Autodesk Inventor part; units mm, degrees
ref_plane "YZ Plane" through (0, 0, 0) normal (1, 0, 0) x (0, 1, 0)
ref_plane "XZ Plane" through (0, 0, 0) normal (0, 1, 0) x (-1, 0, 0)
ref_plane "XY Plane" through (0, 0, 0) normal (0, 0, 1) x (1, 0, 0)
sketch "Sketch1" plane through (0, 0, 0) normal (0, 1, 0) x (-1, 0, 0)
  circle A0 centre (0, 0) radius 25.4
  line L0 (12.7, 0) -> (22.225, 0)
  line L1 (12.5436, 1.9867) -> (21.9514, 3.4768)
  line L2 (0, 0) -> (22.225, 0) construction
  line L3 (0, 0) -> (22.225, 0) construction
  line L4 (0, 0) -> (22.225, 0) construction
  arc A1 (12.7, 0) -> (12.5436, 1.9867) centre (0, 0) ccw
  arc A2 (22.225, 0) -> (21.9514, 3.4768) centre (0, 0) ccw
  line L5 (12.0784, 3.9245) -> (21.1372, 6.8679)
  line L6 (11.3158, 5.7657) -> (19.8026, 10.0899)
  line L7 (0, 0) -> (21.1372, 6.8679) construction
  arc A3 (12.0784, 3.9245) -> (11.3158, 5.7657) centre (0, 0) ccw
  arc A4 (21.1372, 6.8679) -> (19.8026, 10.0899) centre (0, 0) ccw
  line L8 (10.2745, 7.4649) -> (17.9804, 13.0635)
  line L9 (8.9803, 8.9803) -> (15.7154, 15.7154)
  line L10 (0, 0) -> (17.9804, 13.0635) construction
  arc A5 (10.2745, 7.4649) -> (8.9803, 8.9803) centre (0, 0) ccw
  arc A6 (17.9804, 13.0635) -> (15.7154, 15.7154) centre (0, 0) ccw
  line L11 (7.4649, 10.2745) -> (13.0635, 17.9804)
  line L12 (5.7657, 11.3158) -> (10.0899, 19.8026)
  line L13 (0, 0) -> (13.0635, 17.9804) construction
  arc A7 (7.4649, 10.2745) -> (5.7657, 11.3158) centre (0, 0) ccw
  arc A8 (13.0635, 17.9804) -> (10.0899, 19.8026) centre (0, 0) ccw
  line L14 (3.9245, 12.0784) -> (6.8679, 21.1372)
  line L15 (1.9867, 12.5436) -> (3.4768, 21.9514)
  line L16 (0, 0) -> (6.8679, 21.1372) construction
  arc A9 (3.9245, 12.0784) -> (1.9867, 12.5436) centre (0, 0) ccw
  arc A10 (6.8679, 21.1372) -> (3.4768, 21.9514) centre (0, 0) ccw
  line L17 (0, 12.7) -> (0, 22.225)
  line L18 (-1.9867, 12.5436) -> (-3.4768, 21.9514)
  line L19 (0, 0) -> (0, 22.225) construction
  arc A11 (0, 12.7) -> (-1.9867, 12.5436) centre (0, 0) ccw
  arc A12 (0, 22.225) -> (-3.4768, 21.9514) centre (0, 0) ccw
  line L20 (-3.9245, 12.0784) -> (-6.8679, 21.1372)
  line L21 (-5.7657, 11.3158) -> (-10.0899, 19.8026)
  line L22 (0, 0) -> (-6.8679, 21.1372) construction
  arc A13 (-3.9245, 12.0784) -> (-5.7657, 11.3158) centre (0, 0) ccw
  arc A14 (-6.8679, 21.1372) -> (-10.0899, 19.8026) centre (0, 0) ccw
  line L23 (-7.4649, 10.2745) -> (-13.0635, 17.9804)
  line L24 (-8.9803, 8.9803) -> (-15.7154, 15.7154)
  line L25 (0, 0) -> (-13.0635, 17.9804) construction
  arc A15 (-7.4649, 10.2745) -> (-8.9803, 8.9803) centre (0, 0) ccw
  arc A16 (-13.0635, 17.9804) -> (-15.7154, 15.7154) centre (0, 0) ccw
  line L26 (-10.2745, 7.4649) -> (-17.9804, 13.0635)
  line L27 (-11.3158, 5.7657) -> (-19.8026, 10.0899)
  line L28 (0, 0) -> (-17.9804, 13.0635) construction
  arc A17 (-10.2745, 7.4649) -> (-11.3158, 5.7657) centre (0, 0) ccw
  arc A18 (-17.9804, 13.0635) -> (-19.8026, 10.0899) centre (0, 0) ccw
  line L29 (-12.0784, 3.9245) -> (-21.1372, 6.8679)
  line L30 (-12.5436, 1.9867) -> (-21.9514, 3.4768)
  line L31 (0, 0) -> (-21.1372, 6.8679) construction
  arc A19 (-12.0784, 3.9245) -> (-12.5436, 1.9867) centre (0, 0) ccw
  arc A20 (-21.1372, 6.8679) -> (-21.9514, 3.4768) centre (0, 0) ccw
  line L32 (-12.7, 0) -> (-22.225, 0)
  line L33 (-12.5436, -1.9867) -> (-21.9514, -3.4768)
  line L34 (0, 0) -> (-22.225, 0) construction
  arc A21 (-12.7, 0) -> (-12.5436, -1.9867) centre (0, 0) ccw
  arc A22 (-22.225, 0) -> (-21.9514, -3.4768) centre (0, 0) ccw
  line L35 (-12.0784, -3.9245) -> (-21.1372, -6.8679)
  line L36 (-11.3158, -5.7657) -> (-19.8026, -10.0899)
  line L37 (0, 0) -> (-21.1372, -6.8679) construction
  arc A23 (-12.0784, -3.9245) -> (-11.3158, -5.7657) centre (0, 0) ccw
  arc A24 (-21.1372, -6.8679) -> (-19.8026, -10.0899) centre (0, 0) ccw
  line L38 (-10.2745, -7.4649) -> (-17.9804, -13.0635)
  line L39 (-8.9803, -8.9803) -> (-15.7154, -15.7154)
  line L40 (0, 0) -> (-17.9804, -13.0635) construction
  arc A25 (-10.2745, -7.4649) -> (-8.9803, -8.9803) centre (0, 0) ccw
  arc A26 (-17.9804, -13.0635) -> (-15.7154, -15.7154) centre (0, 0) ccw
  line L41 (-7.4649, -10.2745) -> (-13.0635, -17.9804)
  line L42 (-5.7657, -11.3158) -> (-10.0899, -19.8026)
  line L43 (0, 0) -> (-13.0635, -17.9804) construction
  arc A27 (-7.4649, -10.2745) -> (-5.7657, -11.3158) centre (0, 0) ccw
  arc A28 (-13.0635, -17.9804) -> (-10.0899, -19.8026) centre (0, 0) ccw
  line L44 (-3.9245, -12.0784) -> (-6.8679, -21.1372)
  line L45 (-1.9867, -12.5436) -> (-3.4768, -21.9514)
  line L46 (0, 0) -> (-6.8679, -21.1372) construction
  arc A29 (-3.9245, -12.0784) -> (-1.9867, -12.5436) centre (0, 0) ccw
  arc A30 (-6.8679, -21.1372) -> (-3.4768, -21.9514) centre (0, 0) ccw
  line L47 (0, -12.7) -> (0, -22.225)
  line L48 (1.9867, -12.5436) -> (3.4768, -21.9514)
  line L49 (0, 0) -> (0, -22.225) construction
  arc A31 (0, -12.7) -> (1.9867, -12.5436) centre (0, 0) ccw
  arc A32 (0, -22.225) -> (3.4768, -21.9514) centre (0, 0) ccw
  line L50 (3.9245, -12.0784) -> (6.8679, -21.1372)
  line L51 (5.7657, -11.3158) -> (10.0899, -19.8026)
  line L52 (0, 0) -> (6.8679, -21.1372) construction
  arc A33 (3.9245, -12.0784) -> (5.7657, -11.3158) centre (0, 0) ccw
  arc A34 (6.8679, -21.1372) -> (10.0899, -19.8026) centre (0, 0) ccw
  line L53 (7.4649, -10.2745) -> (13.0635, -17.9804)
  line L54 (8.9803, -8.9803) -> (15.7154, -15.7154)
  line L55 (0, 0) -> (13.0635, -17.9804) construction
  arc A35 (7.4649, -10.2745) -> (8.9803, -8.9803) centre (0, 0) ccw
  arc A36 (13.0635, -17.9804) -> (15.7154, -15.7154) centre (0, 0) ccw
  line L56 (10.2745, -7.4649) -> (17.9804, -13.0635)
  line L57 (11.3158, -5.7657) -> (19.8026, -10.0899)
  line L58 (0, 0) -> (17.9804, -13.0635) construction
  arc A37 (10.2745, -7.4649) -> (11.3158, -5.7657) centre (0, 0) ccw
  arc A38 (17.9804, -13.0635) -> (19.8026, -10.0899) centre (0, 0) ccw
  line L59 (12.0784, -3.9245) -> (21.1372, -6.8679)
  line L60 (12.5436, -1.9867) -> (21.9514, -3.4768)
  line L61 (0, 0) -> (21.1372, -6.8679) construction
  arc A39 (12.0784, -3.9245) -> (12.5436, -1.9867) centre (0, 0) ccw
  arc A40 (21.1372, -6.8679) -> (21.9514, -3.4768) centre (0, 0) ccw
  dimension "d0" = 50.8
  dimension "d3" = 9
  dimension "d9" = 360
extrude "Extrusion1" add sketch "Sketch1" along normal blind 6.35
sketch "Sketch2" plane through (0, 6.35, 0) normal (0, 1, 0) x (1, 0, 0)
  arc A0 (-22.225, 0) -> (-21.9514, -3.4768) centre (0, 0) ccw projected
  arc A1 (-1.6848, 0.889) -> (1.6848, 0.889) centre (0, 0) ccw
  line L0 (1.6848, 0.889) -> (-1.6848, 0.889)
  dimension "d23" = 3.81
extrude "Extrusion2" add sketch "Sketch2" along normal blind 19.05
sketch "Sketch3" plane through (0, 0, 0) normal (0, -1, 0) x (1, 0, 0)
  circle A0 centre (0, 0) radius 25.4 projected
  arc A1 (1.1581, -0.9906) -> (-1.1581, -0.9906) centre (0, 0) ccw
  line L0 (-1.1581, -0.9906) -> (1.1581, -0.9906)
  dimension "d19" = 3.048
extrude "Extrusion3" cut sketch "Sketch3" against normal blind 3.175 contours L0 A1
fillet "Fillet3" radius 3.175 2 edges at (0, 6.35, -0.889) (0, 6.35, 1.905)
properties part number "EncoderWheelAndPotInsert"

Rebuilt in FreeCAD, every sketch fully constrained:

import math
import FreeCAD as App
import Part
import Sketcher
Q = App.Units.Quantity


def edges_at(feature, points):
    """Names of the edges that pass closest to the given points."""
    edges = feature.Shape.Edges
    near = lambda p: min(range(len(edges)), key=lambda i: edges[i].distToShape(Part.Vertex(*p))[0])
    return sorted({f"Edge{near(p) + 1}" for p in points})

doc = App.newDocument("Part")
params = doc.addObject("Spreadsheet::Sheet", "Params")
for row, (alias, value) in enumerate([
    ("sketch1_diameter", "2 in"),
    ("sketch1_radius", "0.875 in"),
    ("pad1_length", "0.25 in"),
    ("sketch2_radius", "0.075 in"),
    ("pad2_length", "0.75 in"),
    ("sketch3_radius", "0.06 in"),
    ("pocket1_length", "0.125 in"),
    ("fillet_radius", "0.125 in"),
], start=1):
    params.set(f"A{row}", alias)
    params.set(f"B{row}", "=" + value)
    params.setAlias(f"B{row}", alias)

body = doc.addObject("PartDesign::Body", "Body")

sketch1 = doc.addObject("Sketcher::SketchObject", "Sketch")
body.addObject(sketch1)
sketch1.AttachmentSupport = (doc.XZ_Plane, [""])
sketch1.MapMode = "FlatFace"
sketch1.addGeometry(Part.Circle(App.Vector(0, 0, 0), App.Vector(0, 0, 1), 25.4), False)
sketch1.addGeometry(Part.LineSegment(App.Vector(13.0635, -17.9804, 0), App.Vector(7.4649, -10.2745, 0)), False)
sketch1.addGeometry(Part.ArcOfCircle(Part.Circle(App.Vector(-0.001931, 0.002891, 0), App.Vector(0, 0, 1), 12.703477), math.radians(-62.998109), math.radians(-54.000474)), False)
sketch1.addGeometry(Part.LineSegment(App.Vector(5.7657, -11.3158, 0), App.Vector(10.0899, -19.8026, 0)), False)
sketch1.addGeometry(Part.ArcOfCircle(Part.Circle(App.Vector(0.001557, -0.002331, 0), App.Vector(0, 0, 1), 22.222181), math.radians(-63.000915), math.radians(-53.999769)), False)
sketch1.addGeometry(Part.LineSegment(App.Vector(6.8679, -21.1372, 0), App.Vector(3.9245, -12.0784, 0)), False)
sketch1.addGeometry(Part.ArcOfCircle(Part.Circle(App.Vector(0.000987, -0.003499, 0), App.Vector(0, 0, 1), 12.696346), math.radians(-81.001977), math.radians(-71.999399)), False)
sketch1.addGeometry(Part.LineSegment(App.Vector(1.9867, -12.5436, 0), App.Vector(3.4768, -21.9514, 0)), False)
sketch1.addGeometry(Part.ArcOfCircle(Part.Circle(App.Vector(-0.002803, 0.009937, 0), App.Vector(0, 0, 1), 22.235286), math.radians(-80.996772), math.radians(-72.001026)), False)
sketch1.addGeometry(Part.LineSegment(App.Vector(17.9804, -13.0635, 0), App.Vector(10.2745, -7.4649, 0)), False)
sketch1.addGeometry(Part.ArcOfCircle(Part.Circle(App.Vector(-0.007503, 0.005915, 0), App.Vector(0, 0, 1), 12.70955), math.radians(-44.994937), math.radians(-36.001833)), False)
sketch1.addGeometry(Part.LineSegment(App.Vector(8.9803, -8.9803, 0), App.Vector(15.7154, -15.7154, 0)), False)
sketch1.addGeometry(Part.ArcOfCircle(Part.Circle(App.Vector(0.00637, -0.005022, 0), App.Vector(0, 0, 1), 22.216876), math.radians(-45.002459), math.radians(-35.999126)), False)
sketch1.addGeometry(Part.LineSegment(App.Vector(21.1372, -6.8679, 0), App.Vector(12.0784, -3.9245, 0)), False)
sketch1.addGeometry(Part.ArcOfCircle(Part.Circle(App.Vector(-0.007075, 0.00261, 0), App.Vector(0, 0, 1), 12.707513), math.radians(-26.996052), math.radians(-18.001292)), False)
sketch1.addGeometry(Part.LineSegment(App.Vector(11.3158, -5.7657, 0), App.Vector(19.8026, -10.0899, 0)), False)
sketch1.addGeometry(Part.ArcOfCircle(Part.Circle(App.Vector(0, 0, 0), App.Vector(0, 0, 1), 22.22497), math.radians(-26.999934), math.radians(-18.000018)), False)
sketch1.addGeometry(Part.LineSegment(App.Vector(22.225, 0, 0), App.Vector(12.7, 0, 0)), False)
sketch1.addGeometry(Part.ArcOfCircle(Part.Circle(App.Vector(0.007162, -0.000281, 0), App.Vector(0, 0, 1), 12.692838), math.radians(-9.003753), math.radians(0.00127)), False)
sketch1.addGeometry(Part.LineSegment(App.Vector(12.5436, -1.9867, 0), App.Vector(21.9514, -3.4768, 0)), False)
sketch1.addGeometry(Part.ArcOfCircle(Part.Circle(App.Vector(-0.005384, 0.000212, 0), App.Vector(0, 0, 1), 22.230384), math.radians(-8.998469), math.radians(-0.000545)), False)
sketch1.addGeometry(Part.LineSegment(App.Vector(0, -22.225, 0), App.Vector(0, -12.7, 0)), False)
sketch1.addGeometry(Part.ArcOfCircle(Part.Circle(App.Vector(-0.000281, -0.007162, 0), App.Vector(0, 0, 1), 12.692838), math.radians(-99.003753), math.radians(-89.99873)), False)
sketch1.addGeometry(Part.LineSegment(App.Vector(-1.9867, -12.5436, 0), App.Vector(-3.4768, -21.9514, 0)), False)
sketch1.addGeometry(Part.ArcOfCircle(Part.Circle(App.Vector(0.000212, 0.005384, 0), App.Vector(0, 0, 1), 22.230384), math.radians(-98.998469), math.radians(-90.000545)), False)
sketch1.addGeometry(Part.LineSegment(App.Vector(-6.8679, -21.1372, 0), App.Vector(-3.9245, -12.0784, 0)), False)
sketch1.addGeometry(Part.ArcOfCircle(Part.Circle(App.Vector(0.00261, 0.007075, 0), App.Vector(0, 0, 1), 12.707513), math.radians(-116.996052), math.radians(-108.001292)), False)
sketch1.addGeometry(Part.LineSegment(App.Vector(-5.7657, -11.3158, 0), App.Vector(-10.0899, -19.8026, 0)), False)
sketch1.addGeometry(Part.ArcOfCircle(Part.Circle(App.Vector(0, 0, 0), App.Vector(0, 0, 1), 22.22497), math.radians(-116.999934), math.radians(-108.000018)), False)
sketch1.addGeometry(Part.LineSegment(App.Vector(-13.0635, -17.9804, 0), App.Vector(-7.4649, -10.2745, 0)), False)
sketch1.addGeometry(Part.ArcOfCircle(Part.Circle(App.Vector(0.005915, 0.007503, 0), App.Vector(0, 0, 1), 12.70955), math.radians(-134.994937), math.radians(-126.001833)), False)
sketch1.addGeometry(Part.LineSegment(App.Vector(-8.9803, -8.9803, 0), App.Vector(-15.7154, -15.7154, 0)), False)
sketch1.addGeometry(Part.ArcOfCircle(Part.Circle(App.Vector(-0.005022, -0.00637, 0), App.Vector(0, 0, 1), 22.216876), math.radians(-135.002459), math.radians(-125.999126)), False)
sketch1.addGeometry(Part.LineSegment(App.Vector(-17.9804, -13.0635, 0), App.Vector(-10.2745, -7.4649, 0)), False)
sketch1.addGeometry(Part.ArcOfCircle(Part.Circle(App.Vector(0.002891, 0.001931, 0), App.Vector(0, 0, 1), 12.703477), math.radians(-152.998109), math.radians(-144.000474)), False)
sketch1.addGeometry(Part.LineSegment(App.Vector(-11.3158, -5.7657, 0), App.Vector(-19.8026, -10.0899, 0)), False)
sketch1.addGeometry(Part.ArcOfCircle(Part.Circle(App.Vector(-0.002331, -0.001557, 0), App.Vector(0, 0, 1), 22.222181), math.radians(-153.000915), math.radians(-143.999769)), False)
sketch1.addGeometry(Part.LineSegment(App.Vector(-21.1372, -6.8679, 0), App.Vector(-12.0784, -3.9245, 0)), False)
sketch1.addGeometry(Part.ArcOfCircle(Part.Circle(App.Vector(-0.003499, -0.000987, 0), App.Vector(0, 0, 1), 12.696346), math.radians(-171.001977), math.radians(-161.999399)), False)
sketch1.addGeometry(Part.LineSegment(App.Vector(-12.5436, -1.9867, 0), App.Vector(-21.9514, -3.4768, 0)), False)
sketch1.addGeometry(Part.ArcOfCircle(Part.Circle(App.Vector(0.009937, 0.002803, 0), App.Vector(0, 0, 1), 22.235286), math.radians(-170.996772), math.radians(-162.001026)), False)
sketch1.addGeometry(Part.LineSegment(App.Vector(21.1372, 6.8679, 0), App.Vector(12.0784, 3.9245, 0)), False)
sketch1.addGeometry(Part.ArcOfCircle(Part.Circle(App.Vector(0.003499, 0.000987, 0), App.Vector(0, 0, 1), 12.696346), math.radians(8.998023), math.radians(18.000601)), False)
sketch1.addGeometry(Part.LineSegment(App.Vector(12.5436, 1.9867, 0), App.Vector(21.9514, 3.4768, 0)), False)
sketch1.addGeometry(Part.ArcOfCircle(Part.Circle(App.Vector(-0.009937, -0.002803, 0), App.Vector(0, 0, 1), 22.235286), math.radians(9.003228), math.radians(17.998974)), False)
sketch1.addGeometry(Part.LineSegment(App.Vector(17.9804, 13.0635, 0), App.Vector(10.2745, 7.4649, 0)), False)
sketch1.addGeometry(Part.ArcOfCircle(Part.Circle(App.Vector(-0.002891, -0.001931, 0), App.Vector(0, 0, 1), 12.703477), math.radians(27.001891), math.radians(35.999526)), False)
sketch1.addGeometry(Part.LineSegment(App.Vector(11.3158, 5.7657, 0), App.Vector(19.8026, 10.0899, 0)), False)
sketch1.addGeometry(Part.ArcOfCircle(Part.Circle(App.Vector(0.002331, 0.001557, 0), App.Vector(0, 0, 1), 22.222181), math.radians(26.999085), math.radians(36.000231)), False)
sketch1.addGeometry(Part.LineSegment(App.Vector(13.0635, 17.9804, 0), App.Vector(7.4649, 10.2745, 0)), False)
sketch1.addGeometry(Part.ArcOfCircle(Part.Circle(App.Vector(-0.005915, -0.007503, 0), App.Vector(0, 0, 1), 12.70955), math.radians(45.005063), math.radians(53.998167)), False)
sketch1.addGeometry(Part.LineSegment(App.Vector(8.9803, 8.9803, 0), App.Vector(15.7154, 15.7154, 0)), False)
sketch1.addGeometry(Part.ArcOfCircle(Part.Circle(App.Vector(0.005022, 0.00637, 0), App.Vector(0, 0, 1), 22.216876), math.radians(44.997541), math.radians(54.000874)), False)
sketch1.addGeometry(Part.LineSegment(App.Vector(6.8679, 21.1372, 0), App.Vector(3.9245, 12.0784, 0)), False)
sketch1.addGeometry(Part.ArcOfCircle(Part.Circle(App.Vector(-0.00261, -0.007075, 0), App.Vector(0, 0, 1), 12.707513), math.radians(63.003948), math.radians(71.998708)), False)
sketch1.addGeometry(Part.LineSegment(App.Vector(5.7657, 11.3158, 0), App.Vector(10.0899, 19.8026, 0)), False)
sketch1.addGeometry(Part.ArcOfCircle(Part.Circle(App.Vector(0, 0, 0), App.Vector(0, 0, 1), 22.22497), math.radians(63.000066), math.radians(71.999982)), False)
sketch1.addGeometry(Part.LineSegment(App.Vector(0, 22.225, 0), App.Vector(0, 12.7, 0)), False)
sketch1.addGeometry(Part.ArcOfCircle(Part.Circle(App.Vector(0.000281, 0.007162, 0), App.Vector(0, 0, 1), 12.692838), math.radians(80.996247), math.radians(90.00127)), False)
sketch1.addGeometry(Part.LineSegment(App.Vector(1.9867, 12.5436, 0), App.Vector(3.4768, 21.9514, 0)), False)
sketch1.addGeometry(Part.ArcOfCircle(Part.Circle(App.Vector(-0.000212, -0.005384, 0), App.Vector(0, 0, 1), 22.230384), math.radians(81.001531), math.radians(89.999455)), False)
sketch1.addGeometry(Part.LineSegment(App.Vector(-22.225, 0, 0), App.Vector(-12.7, 0, 0)), False)
sketch1.addGeometry(Part.ArcOfCircle(Part.Circle(App.Vector(-0.007162, 0.000281, 0), App.Vector(0, 0, 1), 12.692838), math.radians(170.996247), math.radians(180.00127)), False)
sketch1.addGeometry(Part.LineSegment(App.Vector(-12.5436, 1.9867, 0), App.Vector(-21.9514, 3.4768, 0)), False)
sketch1.addGeometry(Part.ArcOfCircle(Part.Circle(App.Vector(0.005384, -0.000212, 0), App.Vector(0, 0, 1), 22.230384), math.radians(171.001531), math.radians(179.999455)), False)
sketch1.addGeometry(Part.LineSegment(App.Vector(-21.1372, 6.8679, 0), App.Vector(-12.0784, 3.9245, 0)), False)
sketch1.addGeometry(Part.ArcOfCircle(Part.Circle(App.Vector(0.007075, -0.00261, 0), App.Vector(0, 0, 1), 12.707513), math.radians(153.003948), math.radians(161.998708)), False)
sketch1.addGeometry(Part.LineSegment(App.Vector(-11.3158, 5.7657, 0), App.Vector(-19.8026, 10.0899, 0)), False)
sketch1.addGeometry(Part.ArcOfCircle(Part.Circle(App.Vector(0, 0, 0), App.Vector(0, 0, 1), 22.22497), math.radians(153.000066), math.radians(161.999982)), False)
sketch1.addGeometry(Part.LineSegment(App.Vector(-17.9804, 13.0635, 0), App.Vector(-10.2745, 7.4649, 0)), False)
sketch1.addGeometry(Part.ArcOfCircle(Part.Circle(App.Vector(0.007503, -0.005915, 0), App.Vector(0, 0, 1), 12.70955), math.radians(135.005063), math.radians(143.998167)), False)
sketch1.addGeometry(Part.LineSegment(App.Vector(-8.9803, 8.9803, 0), App.Vector(-15.7154, 15.7154, 0)), False)
sketch1.addGeometry(Part.ArcOfCircle(Part.Circle(App.Vector(-0.00637, 0.005022, 0), App.Vector(0, 0, 1), 22.216876), math.radians(134.997541), math.radians(144.000874)), False)
sketch1.addGeometry(Part.LineSegment(App.Vector(-6.8679, 21.1372, 0), App.Vector(-3.9245, 12.0784, 0)), False)
sketch1.addGeometry(Part.ArcOfCircle(Part.Circle(App.Vector(-0.000987, 0.003499, 0), App.Vector(0, 0, 1), 12.696346), math.radians(98.998023), math.radians(108.000601)), False)
sketch1.addGeometry(Part.LineSegment(App.Vector(-1.9867, 12.5436, 0), App.Vector(-3.4768, 21.9514, 0)), False)
sketch1.addGeometry(Part.ArcOfCircle(Part.Circle(App.Vector(0.002803, -0.009937, 0), App.Vector(0, 0, 1), 22.235286), math.radians(99.003228), math.radians(107.998974)), False)
sketch1.addGeometry(Part.LineSegment(App.Vector(-13.0635, 17.9804, 0), App.Vector(-7.4649, 10.2745, 0)), False)
sketch1.addGeometry(Part.ArcOfCircle(Part.Circle(App.Vector(0.001931, -0.002891, 0), App.Vector(0, 0, 1), 12.703477), math.radians(117.001891), math.radians(125.999526)), False)
sketch1.addGeometry(Part.LineSegment(App.Vector(-5.7657, 11.3158, 0), App.Vector(-10.0899, 19.8026, 0)), False)
sketch1.addGeometry(Part.ArcOfCircle(Part.Circle(App.Vector(-0.001557, 0.002331, 0), App.Vector(0, 0, 1), 22.222181), math.radians(116.999085), math.radians(126.000231)), False)
sketch1.addConstraint(Sketcher.Constraint("Coincident", 1, 2, 2, 2))
sketch1.addConstraint(Sketcher.Constraint("Coincident", 2, 1, 3, 1))
sketch1.addConstraint(Sketcher.Constraint("Coincident", 3, 2, 4, 1))
sketch1.addConstraint(Sketcher.Constraint("Coincident", 4, 2, 1, 1))
sketch1.addConstraint(Sketcher.Constraint("Coincident", 5, 2, 6, 2))
sketch1.addConstraint(Sketcher.Constraint("Coincident", 6, 1, 7, 1))
sketch1.addConstraint(Sketcher.Constraint("Coincident", 7, 2, 8, 1))
sketch1.addConstraint(Sketcher.Constraint("Coincident", 8, 2, 5, 1))
sketch1.addConstraint(Sketcher.Constraint("Coincident", 9, 2, 10, 2))
sketch1.addConstraint(Sketcher.Constraint("Coincident", 10, 1, 11, 1))
sketch1.addConstraint(Sketcher.Constraint("Coincident", 11, 2, 12, 1))
sketch1.addConstraint(Sketcher.Constraint("Coincident", 12, 2, 9, 1))
sketch1.addConstraint(Sketcher.Constraint("Coincident", 13, 2, 14, 2))
sketch1.addConstraint(Sketcher.Constraint("Coincident", 14, 1, 15, 1))
sketch1.addConstraint(Sketcher.Constraint("Coincident", 15, 2, 16, 1))
sketch1.addConstraint(Sketcher.Constraint("Coincident", 16, 2, 13, 1))
sketch1.addConstraint(Sketcher.Constraint("Coincident", 17, 2, 18, 2))
sketch1.addConstraint(Sketcher.Constraint("Coincident", 18, 1, 19, 1))
sketch1.addConstraint(Sketcher.Constraint("Coincident", 19, 2, 20, 1))
sketch1.addConstraint(Sketcher.Constraint("Coincident", 20, 2, 17, 1))
sketch1.addConstraint(Sketcher.Constraint("Coincident", 21, 2, 22, 2))
sketch1.addConstraint(Sketcher.Constraint("Coincident", 22, 1, 23, 1))
sketch1.addConstraint(Sketcher.Constraint("Coincident", 23, 2, 24, 1))
sketch1.addConstraint(Sketcher.Constraint("Coincident", 24, 2, 21, 1))
sketch1.addConstraint(Sketcher.Constraint("Coincident", 25, 2, 26, 2))
sketch1.addConstraint(Sketcher.Constraint("Coincident", 26, 1, 27, 1))
sketch1.addConstraint(Sketcher.Constraint("Coincident", 27, 2, 28, 1))
sketch1.addConstraint(Sketcher.Constraint("Coincident", 28, 2, 25, 1))
sketch1.addConstraint(Sketcher.Constraint("Coincident", 29, 2, 30, 2))
sketch1.addConstraint(Sketcher.Constraint("Coincident", 30, 1, 31, 1))
sketch1.addConstraint(Sketcher.Constraint("Coincident", 31, 2, 32, 1))
sketch1.addConstraint(Sketcher.Constraint("Coincident", 32, 2, 29, 1))
sketch1.addConstraint(Sketcher.Constraint("Coincident", 33, 2, 34, 2))
sketch1.addConstraint(Sketcher.Constraint("Coincident", 34, 1, 35, 1))
sketch1.addConstraint(Sketcher.Constraint("Coincident", 35, 2, 36, 1))
sketch1.addConstraint(Sketcher.Constraint("Coincident", 36, 2, 33, 1))
sketch1.addConstraint(Sketcher.Constraint("Coincident", 37, 2, 38, 2))
sketch1.addConstraint(Sketcher.Constraint("Coincident", 38, 1, 39, 1))
sketch1.addConstraint(Sketcher.Constraint("Coincident", 39, 2, 40, 1))
sketch1.addConstraint(Sketcher.Constraint("Coincident", 40, 2, 37, 1))
sketch1.addConstraint(Sketcher.Constraint("Coincident", 41, 2, 42, 2))
sketch1.addConstraint(Sketcher.Constraint("Coincident", 42, 1, 43, 1))
sketch1.addConstraint(Sketcher.Constraint("Coincident", 43, 2, 44, 1))
sketch1.addConstraint(Sketcher.Constraint("Coincident", 44, 2, 41, 1))
sketch1.addConstraint(Sketcher.Constraint("Coincident", 45, 2, 46, 2))
sketch1.addConstraint(Sketcher.Constraint("Coincident", 46, 1, 47, 1))
sketch1.addConstraint(Sketcher.Constraint("Coincident", 47, 2, 48, 1))
sketch1.addConstraint(Sketcher.Constraint("Coincident", 48, 2, 45, 1))
sketch1.addConstraint(Sketcher.Constraint("Coincident", 49, 2, 50, 2))
sketch1.addConstraint(Sketcher.Constraint("Coincident", 50, 1, 51, 1))
sketch1.addConstraint(Sketcher.Constraint("Coincident", 51, 2, 52, 1))
sketch1.addConstraint(Sketcher.Constraint("Coincident", 52, 2, 49, 1))
sketch1.addConstraint(Sketcher.Constraint("Coincident", 53, 2, 54, 2))
sketch1.addConstraint(Sketcher.Constraint("Coincident", 54, 1, 55, 1))
sketch1.addConstraint(Sketcher.Constraint("Coincident", 55, 2, 56, 1))
sketch1.addConstraint(Sketcher.Constraint("Coincident", 56, 2, 53, 1))
sketch1.addConstraint(Sketcher.Constraint("Coincident", 57, 2, 58, 2))
sketch1.addConstraint(Sketcher.Constraint("Coincident", 58, 1, 59, 1))
sketch1.addConstraint(Sketcher.Constraint("Coincident", 59, 2, 60, 1))
sketch1.addConstraint(Sketcher.Constraint("Coincident", 60, 2, 57, 1))
sketch1.addConstraint(Sketcher.Constraint("Coincident", 61, 2, 62, 2))
sketch1.addConstraint(Sketcher.Constraint("Coincident", 62, 1, 63, 1))
sketch1.addConstraint(Sketcher.Constraint("Coincident", 63, 2, 64, 1))
sketch1.addConstraint(Sketcher.Constraint("Coincident", 64, 2, 61, 1))
sketch1.addConstraint(Sketcher.Constraint("Coincident", 65, 2, 66, 2))
sketch1.addConstraint(Sketcher.Constraint("Coincident", 66, 1, 67, 1))
sketch1.addConstraint(Sketcher.Constraint("Coincident", 67, 2, 68, 1))
sketch1.addConstraint(Sketcher.Constraint("Coincident", 68, 2, 65, 1))
sketch1.addConstraint(Sketcher.Constraint("Coincident", 69, 2, 70, 2))
sketch1.addConstraint(Sketcher.Constraint("Coincident", 70, 1, 71, 1))
sketch1.addConstraint(Sketcher.Constraint("Coincident", 71, 2, 72, 1))
sketch1.addConstraint(Sketcher.Constraint("Coincident", 72, 2, 69, 1))
sketch1.addConstraint(Sketcher.Constraint("Coincident", 73, 2, 74, 2))
sketch1.addConstraint(Sketcher.Constraint("Coincident", 74, 1, 75, 1))
sketch1.addConstraint(Sketcher.Constraint("Coincident", 75, 2, 76, 1))
sketch1.addConstraint(Sketcher.Constraint("Coincident", 76, 2, 73, 1))
sketch1.addConstraint(Sketcher.Constraint("Coincident", 77, 2, 78, 2))
sketch1.addConstraint(Sketcher.Constraint("Coincident", 78, 1, 79, 1))
sketch1.addConstraint(Sketcher.Constraint("Coincident", 79, 2, 80, 1))
sketch1.addConstraint(Sketcher.Constraint("Coincident", 80, 2, 77, 1))
sketch1.addConstraint(Sketcher.Constraint("Horizontal", 17))
sketch1.addConstraint(Sketcher.Constraint("Vertical", 21))
sketch1.addConstraint(Sketcher.Constraint("Vertical", 57))
sketch1.addConstraint(Sketcher.Constraint("Horizontal", 61))
sketch1.addConstraint(Sketcher.Constraint("Coincident", 0, 3, -1, 1))
sketch1.addConstraint(Sketcher.Constraint("Coincident", 16, 3, -1, 1))
sketch1.addConstraint(Sketcher.Constraint("Coincident", 28, 3, -1, 1))
sketch1.addConstraint(Sketcher.Constraint("Coincident", 56, 3, -1, 1))
sketch1.addConstraint(Sketcher.Constraint("Coincident", 68, 3, -1, 1))
sketch1.addConstraint(Sketcher.Constraint("Equal", 18, 22))
sketch1.addConstraint(Sketcher.Constraint("Equal", 20, 24))
sketch1.addConstraint(Sketcher.Constraint("Equal", 14, 26))
sketch1.addConstraint(Sketcher.Constraint("Equal", 16, 28))
sketch1.addConstraint(Sketcher.Constraint("Equal", 10, 30))
sketch1.addConstraint(Sketcher.Constraint("Equal", 12, 32))
sketch1.addConstraint(Sketcher.Constraint("Equal", 2, 34))
sketch1.addConstraint(Sketcher.Constraint("Equal", 4, 36))
sketch1.addConstraint(Sketcher.Constraint("Equal", 6, 38))
sketch1.addConstraint(Sketcher.Constraint("Equal", 8, 40))
sketch1.addConstraint(Sketcher.Constraint("Equal", 38, 42))
sketch1.addConstraint(Sketcher.Constraint("Equal", 40, 44))
sketch1.addConstraint(Sketcher.Constraint("Equal", 34, 46))
sketch1.addConstraint(Sketcher.Constraint("Equal", 36, 48))
sketch1.addConstraint(Sketcher.Constraint("Equal", 30, 50))
sketch1.addConstraint(Sketcher.Constraint("Equal", 32, 52))
sketch1.addConstraint(Sketcher.Constraint("Equal", 26, 54))
sketch1.addConstraint(Sketcher.Constraint("Equal", 28, 56))
sketch1.addConstraint(Sketcher.Constraint("Equal", 22, 58))
sketch1.addConstraint(Sketcher.Constraint("Equal", 24, 60))
sketch1.addConstraint(Sketcher.Constraint("Equal", 58, 62))
sketch1.addConstraint(Sketcher.Constraint("Equal", 60, 64))
sketch1.addConstraint(Sketcher.Constraint("Equal", 54, 66))
sketch1.addConstraint(Sketcher.Constraint("Equal", 56, 68))
sketch1.addConstraint(Sketcher.Constraint("Equal", 50, 70))
sketch1.addConstraint(Sketcher.Constraint("Equal", 52, 72))
sketch1.addConstraint(Sketcher.Constraint("Equal", 42, 74))
sketch1.addConstraint(Sketcher.Constraint("Equal", 44, 76))
sketch1.addConstraint(Sketcher.Constraint("Equal", 46, 78))
sketch1.addConstraint(Sketcher.Constraint("Equal", 48, 80))
sketch1.addConstraint(Sketcher.Constraint("Symmetric", 38, 3, 42, 3, -1, 1))
sketch1.addConstraint(Sketcher.Constraint("Symmetric", 40, 3, 44, 3, -1, 1))
sketch1.addConstraint(Sketcher.Constraint("Symmetric", 34, 3, 46, 3, -1, 1))
sketch1.addConstraint(Sketcher.Constraint("Symmetric", 36, 3, 48, 3, -1, 1))
sketch1.addConstraint(Sketcher.Constraint("Symmetric", 30, 3, 50, 3, -1, 1))
sketch1.addConstraint(Sketcher.Constraint("Symmetric", 32, 3, 52, 3, -1, 1))
sketch1.addConstraint(Sketcher.Constraint("Symmetric", 26, 3, 54, 3, -1, 1))
sketch1.addConstraint(Sketcher.Constraint("Symmetric", 22, 3, 58, 3, -1, 1))
sketch1.addConstraint(Sketcher.Constraint("Symmetric", 24, 3, 60, 3, -1, 1))
sketch1.addConstraint(Sketcher.Constraint("Symmetric", 18, 3, 62, 3, -1, 1))
sketch1.addConstraint(Sketcher.Constraint("Symmetric", 20, 3, 64, 3, -1, 1))
sketch1.addConstraint(Sketcher.Constraint("Symmetric", 14, 3, 66, 3, -1, 1))
sketch1.addConstraint(Sketcher.Constraint("Symmetric", 10, 3, 70, 3, -1, 1))
sketch1.addConstraint(Sketcher.Constraint("Symmetric", 12, 3, 72, 3, -1, 1))
sketch1.addConstraint(Sketcher.Constraint("Symmetric", 6, 3, 74, 3, -1, 1))
sketch1.addConstraint(Sketcher.Constraint("Symmetric", 8, 3, 76, 3, -1, 1))
sketch1.addConstraint(Sketcher.Constraint("Symmetric", 2, 3, 78, 3, -1, 1))
sketch1.addConstraint(Sketcher.Constraint("Symmetric", 4, 3, 80, 3, -1, 1))
sketch1.addConstraint(Sketcher.Constraint("Symmetric", 6, 1, 22, 1, -2))
sketch1.addConstraint(Sketcher.Constraint("Symmetric", 7, 2, 23, 2, -2))
sketch1.addConstraint(Sketcher.Constraint("Symmetric", 5, 2, 25, 2, -2))
sketch1.addConstraint(Sketcher.Constraint("Symmetric", 2, 1, 26, 1, -2))
sketch1.addConstraint(Sketcher.Constraint("Symmetric", 3, 2, 27, 2, -2))
sketch1.addConstraint(Sketcher.Constraint("Symmetric", 8, 2, 28, 2, -2))
sketch1.addConstraint(Sketcher.Constraint("Symmetric", 1, 2, 29, 2, -2))
sketch1.addConstraint(Sketcher.Constraint("Symmetric", 10, 1, 30, 1, -2))
sketch1.addConstraint(Sketcher.Constraint("Symmetric", 11, 2, 31, 2, -2))
sketch1.addConstraint(Sketcher.Constraint("Symmetric", 4, 2, 32, 2, -2))
sketch1.addConstraint(Sketcher.Constraint("Symmetric", 9, 2, 33, 2, -2))
sketch1.addConstraint(Sketcher.Constraint("Symmetric", 14, 1, 34, 1, -2))
sketch1.addConstraint(Sketcher.Constraint("Symmetric", 15, 2, 35, 2, -2))
sketch1.addConstraint(Sketcher.Constraint("Symmetric", 12, 2, 36, 2, -2))
sketch1.addConstraint(Sketcher.Constraint("Symmetric", 13, 2, 37, 2, -2))
sketch1.addConstraint(Sketcher.Constraint("Symmetric", 18, 1, 38, 1, -2))
sketch1.addConstraint(Sketcher.Constraint("Symmetric", 19, 2, 39, 2, -2))
sketch1.addConstraint(Sketcher.Constraint("Symmetric", 16, 2, 40, 2, -2))
sketch1.addConstraint(Sketcher.Constraint("PointOnObject", 17, 2, -1))
sketch1.addConstraint(Sketcher.Constraint("PointOnObject", 21, 2, -2))
sketch1.addConstraint(Sketcher.Constraint("PointOnObject", 57, 2, -2))
sketch1.addConstraint(Sketcher.Constraint("PointOnObject", 61, 2, -1))
sketch1.addConstraint(Sketcher.Constraint("Perpendicular", 19, 23))
sketch1.addConstraint(Sketcher.Constraint("Perpendicular", 13, 25))
sketch1.addConstraint(Sketcher.Constraint("Perpendicular", 15, 27))
sketch1.addConstraint(Sketcher.Constraint("Perpendicular", 9, 29))
sketch1.addConstraint(Sketcher.Constraint("Perpendicular", 11, 31))
sketch1.addConstraint(Sketcher.Constraint("Parallel", 37, 41))
sketch1.addConstraint(Sketcher.Constraint("Parallel", 39, 43))
sketch1.addConstraint(Sketcher.Constraint("Parallel", 33, 45))
sketch1.addConstraint(Sketcher.Constraint("Parallel", 35, 47))
sketch1.addConstraint(Sketcher.Constraint("Parallel", 29, 49))
sketch1.addConstraint(Sketcher.Constraint("Parallel", 31, 51))
sketch1.addConstraint(Sketcher.Constraint("Parallel", 25, 53))
sketch1.addConstraint(Sketcher.Constraint("Parallel", 27, 55))
sketch1.addConstraint(Sketcher.Constraint("Parallel", 23, 59))
sketch1.addConstraint(Sketcher.Constraint("Perpendicular", 59, 63))
sketch1.addConstraint(Sketcher.Constraint("Perpendicular", 53, 65))
sketch1.addConstraint(Sketcher.Constraint("Perpendicular", 55, 67))
sketch1.addConstraint(Sketcher.Constraint("Perpendicular", 49, 69))
sketch1.addConstraint(Sketcher.Constraint("Perpendicular", 51, 71))
sketch1.addConstraint(Sketcher.Constraint("Perpendicular", 41, 73))
sketch1.addConstraint(Sketcher.Constraint("Perpendicular", 43, 75))
sketch1.addConstraint(Sketcher.Constraint("Perpendicular", 45, 77))
sketch1.addConstraint(Sketcher.Constraint("Perpendicular", 47, 79))
sketch1.addConstraint(Sketcher.Constraint("Horizontal", 14, 3, 40, 3))
sketch1.addConstraint(Sketcher.Constraint("Horizontal", 22, 3, 54, 3))
sketch1.addConstraint(Sketcher.Constraint("Horizontal", 20, 3, 62, 3))
sketch1.addConstraint(Sketcher.Constraint("Horizontal", 44, 3, 78, 3))
sketch1.addConstraint(Sketcher.Constraint("Horizontal", 42, 1, 62, 1))
sketch1.addConstraint(Sketcher.Constraint("Horizontal", 41, 2, 65, 2))
sketch1.addConstraint(Sketcher.Constraint("Horizontal", 46, 1, 66, 1))
sketch1.addConstraint(Sketcher.Constraint("Horizontal", 45, 2, 69, 2))
sketch1.addConstraint(Sketcher.Constraint("Horizontal", 50, 1, 70, 1))
sketch1.addConstraint(Sketcher.Constraint("Horizontal", 53, 2, 73, 2))
sketch1.addConstraint(Sketcher.Constraint("Horizontal", 58, 1, 74, 1))
sketch1.addConstraint(Sketcher.Constraint("Horizontal", 49, 2, 77, 2))
sketch1.addConstraint(Sketcher.Constraint("Horizontal", 54, 1, 78, 1))
sketch1.addConstraint(Sketcher.Constraint("Vertical", 8, 3, 46, 3))
sketch1.addConstraint(Sketcher.Constraint("Vertical", 8, 3, 54, 3))
sketch1.addConstraint(Sketcher.Constraint("Vertical", 24, 3, 58, 3))
sketch1.addConstraint(Sketcher.Constraint("Vertical", 14, 3, 62, 3))
sketch1.addConstraint(Sketcher.Constraint("Vertical", 13, 2, 41, 2))
sketch1.addConstraint(Sketcher.Constraint("Vertical", 18, 1, 42, 1))
sketch1.addConstraint(Sketcher.Constraint("Vertical", 9, 2, 45, 2))
sketch1.addConstraint(Sketcher.Constraint("Vertical", 14, 1, 46, 1))
sketch1.addConstraint(Sketcher.Constraint("Vertical", 1, 2, 49, 2))
sketch1.addConstraint(Sketcher.Constraint("Vertical", 10, 1, 50, 1))
sketch1.addConstraint(Sketcher.Constraint("Vertical", 5, 2, 53, 2))
sketch1.addConstraint(Sketcher.Constraint("Vertical", 2, 1, 54, 1))
sketch1.addConstraint(Sketcher.Constraint("Vertical", 6, 1, 58, 1))
sketch1.addConstraint(Sketcher.Constraint("Equal", 61, 21))
sketch1.addConstraint(Sketcher.Constraint("Equal", 1, 3))
sketch1.addConstraint(Sketcher.Constraint("Equal", 3, 5))
sketch1.addConstraint(Sketcher.Constraint("Equal", 5, 7))
sketch1.addConstraint(Sketcher.Constraint("Equal", 7, 9))
sketch1.addConstraint(Sketcher.Constraint("Equal", 9, 11))
sketch1.addConstraint(Sketcher.Constraint("Equal", 11, 13))
sketch1.addConstraint(Sketcher.Constraint("Equal", 13, 15))
sketch1.addConstraint(Sketcher.Constraint("Diameter", 0, Q("2 in")))
sketch1.addConstraint(Sketcher.Constraint("Angle", 19, Q("-9.0003 deg")))
sketch1.addConstraint(Sketcher.Constraint("DistanceY", 18, 3, -1, 1, Q("0 in")))
sketch1.addConstraint(Sketcher.Constraint("Angle", 1, Q("125.9997 deg")))
sketch1.addConstraint(Sketcher.Constraint("Angle", 3, Q("-63.0002 deg")))
sketch1.addConstraint(Sketcher.Constraint("Angle", 5, Q("108 deg")))
sketch1.addConstraint(Sketcher.Constraint("Radius", 16, Q("0.875 in")))
sketch1.addConstraint(Sketcher.Constraint("DistanceX", -1, 1, 17, 2, Q("0.5 in")))
sketch1.addConstraint(Sketcher.Constraint("Radius", 4, Q("0.8749 in")))
sketch1.addConstraint(Sketcher.Constraint("Radius", 8, Q("0.8754 in")))
sketch1.addConstraint(Sketcher.Constraint("Radius", 14, Q("0.5003 in")))
sketch1.addConstraint(Sketcher.Constraint("Radius", 20, Q("0.8752 in")))
sketch1.addConstraint(Sketcher.Constraint("Radius", 2, Q("12.7035 mm")))
sketch1.addConstraint(Sketcher.Constraint("Radius", 6, Q("12.6963 mm")))
sketch1.addConstraint(Sketcher.Constraint("Radius", 10, Q("12.7096 mm")))
sketch1.addConstraint(Sketcher.Constraint("Radius", 12, Q("22.2169 mm")))
sketch1.addConstraint(Sketcher.Constraint("DistanceX", -1, 1, 2, 1, Q("0.227 in")))
sketch1.addConstraint(Sketcher.Constraint("DistanceY", 14, 1, -1, 1, Q("0.227 in")))
sketch1.addConstraint(Sketcher.Constraint("DistanceX", 10, 3, -1, 1, Q("0.0003 in")))
sketch1.addConstraint(Sketcher.Constraint("DistanceX", -1, 1, 1, 2, Q("0.2939 in")))
sketch1.addConstraint(Sketcher.Constraint("DistanceX", -1, 1, 5, 2, Q("0.1545 in")))
sketch1.addConstraint(Sketcher.Constraint("DistanceX", -1, 1, 9, 2, Q("0.4045 in")))
sketch1.addConstraint(Sketcher.Constraint("DistanceY", 13, 2, -1, 1, Q("0.1545 in")))
sketch1.addConstraint(Sketcher.Constraint("DistanceX", -1, 1, 6, 1, Q("1.9867 mm")))
sketch1.addConstraint(Sketcher.Constraint("DistanceX", -1, 1, 10, 1, Q("8.9803 mm")))
sketch1.addConstraint(Sketcher.Constraint("DistanceX", -1, 1, 18, 1, Q("12.5436 mm")))
sketch1.setExpression("Constraints[216]", "Params.sketch1_diameter")
sketch1.setExpression("Constraints[222]", "Params.sketch1_radius")
pad1 = doc.addObject("PartDesign::Pad", "Pad")
body.addObject(pad1)
pad1.Profile = sketch1
pad1.setExpression("Length", "Params.pad1_length")
pad1.Reversed = True

sketch2 = doc.addObject("Sketcher::SketchObject", "Sketch001")
body.addObject(sketch2)
sketch2.AttachmentSupport = (doc.XZ_Plane, [""])
sketch2.MapMode = "FlatFace"
sketch2.AttachmentOffset = App.Placement(App.Vector(0, 0, -0.25 * 25.4), App.Rotation())
sketch2.addGeometry(Part.LineSegment(App.Vector(1.7, -0.9, 0), App.Vector(-1.7, -0.9, 0)), False)
sketch2.addGeometry(Part.ArcOfCircle(Part.Circle(App.Vector(0, 0, 0), App.Vector(0, 0, 1), 1.9), math.radians(-28), math.radians(208)), False)
sketch2.addConstraint(Sketcher.Constraint("Coincident", 0, 1, 1, 1))
sketch2.addConstraint(Sketcher.Constraint("Coincident", 1, 2, 0, 2))
sketch2.addConstraint(Sketcher.Constraint("Horizontal", 0))
sketch2.addConstraint(Sketcher.Constraint("Coincident", 1, 3, -1, 1))
sketch2.addConstraint(Sketcher.Constraint("Radius", 1, Q("0.075 in")))
sketch2.addConstraint(Sketcher.Constraint("DistanceY", 0, 1, -1, 1, Q("0.035 in")))
sketch2.setExpression("Constraints[4]", "Params.sketch2_radius")
pad2 = doc.addObject("PartDesign::Pad", "Pad001")
body.addObject(pad2)
pad2.Profile = sketch2
pad2.setExpression("Length", "Params.pad2_length")
pad2.Reversed = True

sketch3 = doc.addObject("Sketcher::SketchObject", "Sketch002")
body.addObject(sketch3)
sketch3.AttachmentSupport = (doc.XZ_Plane, [""])
sketch3.MapMode = "FlatFace"
sketch3.addGeometry(Part.LineSegment(App.Vector(-1.2, -1, 0), App.Vector(1.2, -1, 0)), False)
sketch3.addGeometry(Part.ArcOfCircle(Part.Circle(App.Vector(0, 0, 0), App.Vector(0, 0, 1), 1.5), math.radians(-41), math.radians(221)), False)
sketch3.addConstraint(Sketcher.Constraint("Coincident", 0, 1, 1, 2))
sketch3.addConstraint(Sketcher.Constraint("Coincident", 1, 1, 0, 2))
sketch3.addConstraint(Sketcher.Constraint("Horizontal", 0))
sketch3.addConstraint(Sketcher.Constraint("Coincident", 1, 3, -1, 1))
sketch3.addConstraint(Sketcher.Constraint("Radius", 1, Q("0.06 in")))
sketch3.addConstraint(Sketcher.Constraint("DistanceX", 0, 1, 0, 2, Q("0.0912 in")))
sketch3.setExpression("Constraints[4]", "Params.sketch3_radius")
pocket1 = doc.addObject("PartDesign::Pocket", "Pocket")
body.addObject(pocket1)
pocket1.Profile = sketch3
pocket1.setExpression("Length", "Params.pocket1_length")
doc.recompute()

fillet = doc.addObject("PartDesign::Fillet", "Fillet")
body.addObject(fillet)
fillet.Base = (pocket1, edges_at(pocket1, [(0, 6.35, -0.889), (0, 6.35, 1.905)]))
fillet.setExpression("Radius", "Params.fillet_radius")

doc.recompute()
